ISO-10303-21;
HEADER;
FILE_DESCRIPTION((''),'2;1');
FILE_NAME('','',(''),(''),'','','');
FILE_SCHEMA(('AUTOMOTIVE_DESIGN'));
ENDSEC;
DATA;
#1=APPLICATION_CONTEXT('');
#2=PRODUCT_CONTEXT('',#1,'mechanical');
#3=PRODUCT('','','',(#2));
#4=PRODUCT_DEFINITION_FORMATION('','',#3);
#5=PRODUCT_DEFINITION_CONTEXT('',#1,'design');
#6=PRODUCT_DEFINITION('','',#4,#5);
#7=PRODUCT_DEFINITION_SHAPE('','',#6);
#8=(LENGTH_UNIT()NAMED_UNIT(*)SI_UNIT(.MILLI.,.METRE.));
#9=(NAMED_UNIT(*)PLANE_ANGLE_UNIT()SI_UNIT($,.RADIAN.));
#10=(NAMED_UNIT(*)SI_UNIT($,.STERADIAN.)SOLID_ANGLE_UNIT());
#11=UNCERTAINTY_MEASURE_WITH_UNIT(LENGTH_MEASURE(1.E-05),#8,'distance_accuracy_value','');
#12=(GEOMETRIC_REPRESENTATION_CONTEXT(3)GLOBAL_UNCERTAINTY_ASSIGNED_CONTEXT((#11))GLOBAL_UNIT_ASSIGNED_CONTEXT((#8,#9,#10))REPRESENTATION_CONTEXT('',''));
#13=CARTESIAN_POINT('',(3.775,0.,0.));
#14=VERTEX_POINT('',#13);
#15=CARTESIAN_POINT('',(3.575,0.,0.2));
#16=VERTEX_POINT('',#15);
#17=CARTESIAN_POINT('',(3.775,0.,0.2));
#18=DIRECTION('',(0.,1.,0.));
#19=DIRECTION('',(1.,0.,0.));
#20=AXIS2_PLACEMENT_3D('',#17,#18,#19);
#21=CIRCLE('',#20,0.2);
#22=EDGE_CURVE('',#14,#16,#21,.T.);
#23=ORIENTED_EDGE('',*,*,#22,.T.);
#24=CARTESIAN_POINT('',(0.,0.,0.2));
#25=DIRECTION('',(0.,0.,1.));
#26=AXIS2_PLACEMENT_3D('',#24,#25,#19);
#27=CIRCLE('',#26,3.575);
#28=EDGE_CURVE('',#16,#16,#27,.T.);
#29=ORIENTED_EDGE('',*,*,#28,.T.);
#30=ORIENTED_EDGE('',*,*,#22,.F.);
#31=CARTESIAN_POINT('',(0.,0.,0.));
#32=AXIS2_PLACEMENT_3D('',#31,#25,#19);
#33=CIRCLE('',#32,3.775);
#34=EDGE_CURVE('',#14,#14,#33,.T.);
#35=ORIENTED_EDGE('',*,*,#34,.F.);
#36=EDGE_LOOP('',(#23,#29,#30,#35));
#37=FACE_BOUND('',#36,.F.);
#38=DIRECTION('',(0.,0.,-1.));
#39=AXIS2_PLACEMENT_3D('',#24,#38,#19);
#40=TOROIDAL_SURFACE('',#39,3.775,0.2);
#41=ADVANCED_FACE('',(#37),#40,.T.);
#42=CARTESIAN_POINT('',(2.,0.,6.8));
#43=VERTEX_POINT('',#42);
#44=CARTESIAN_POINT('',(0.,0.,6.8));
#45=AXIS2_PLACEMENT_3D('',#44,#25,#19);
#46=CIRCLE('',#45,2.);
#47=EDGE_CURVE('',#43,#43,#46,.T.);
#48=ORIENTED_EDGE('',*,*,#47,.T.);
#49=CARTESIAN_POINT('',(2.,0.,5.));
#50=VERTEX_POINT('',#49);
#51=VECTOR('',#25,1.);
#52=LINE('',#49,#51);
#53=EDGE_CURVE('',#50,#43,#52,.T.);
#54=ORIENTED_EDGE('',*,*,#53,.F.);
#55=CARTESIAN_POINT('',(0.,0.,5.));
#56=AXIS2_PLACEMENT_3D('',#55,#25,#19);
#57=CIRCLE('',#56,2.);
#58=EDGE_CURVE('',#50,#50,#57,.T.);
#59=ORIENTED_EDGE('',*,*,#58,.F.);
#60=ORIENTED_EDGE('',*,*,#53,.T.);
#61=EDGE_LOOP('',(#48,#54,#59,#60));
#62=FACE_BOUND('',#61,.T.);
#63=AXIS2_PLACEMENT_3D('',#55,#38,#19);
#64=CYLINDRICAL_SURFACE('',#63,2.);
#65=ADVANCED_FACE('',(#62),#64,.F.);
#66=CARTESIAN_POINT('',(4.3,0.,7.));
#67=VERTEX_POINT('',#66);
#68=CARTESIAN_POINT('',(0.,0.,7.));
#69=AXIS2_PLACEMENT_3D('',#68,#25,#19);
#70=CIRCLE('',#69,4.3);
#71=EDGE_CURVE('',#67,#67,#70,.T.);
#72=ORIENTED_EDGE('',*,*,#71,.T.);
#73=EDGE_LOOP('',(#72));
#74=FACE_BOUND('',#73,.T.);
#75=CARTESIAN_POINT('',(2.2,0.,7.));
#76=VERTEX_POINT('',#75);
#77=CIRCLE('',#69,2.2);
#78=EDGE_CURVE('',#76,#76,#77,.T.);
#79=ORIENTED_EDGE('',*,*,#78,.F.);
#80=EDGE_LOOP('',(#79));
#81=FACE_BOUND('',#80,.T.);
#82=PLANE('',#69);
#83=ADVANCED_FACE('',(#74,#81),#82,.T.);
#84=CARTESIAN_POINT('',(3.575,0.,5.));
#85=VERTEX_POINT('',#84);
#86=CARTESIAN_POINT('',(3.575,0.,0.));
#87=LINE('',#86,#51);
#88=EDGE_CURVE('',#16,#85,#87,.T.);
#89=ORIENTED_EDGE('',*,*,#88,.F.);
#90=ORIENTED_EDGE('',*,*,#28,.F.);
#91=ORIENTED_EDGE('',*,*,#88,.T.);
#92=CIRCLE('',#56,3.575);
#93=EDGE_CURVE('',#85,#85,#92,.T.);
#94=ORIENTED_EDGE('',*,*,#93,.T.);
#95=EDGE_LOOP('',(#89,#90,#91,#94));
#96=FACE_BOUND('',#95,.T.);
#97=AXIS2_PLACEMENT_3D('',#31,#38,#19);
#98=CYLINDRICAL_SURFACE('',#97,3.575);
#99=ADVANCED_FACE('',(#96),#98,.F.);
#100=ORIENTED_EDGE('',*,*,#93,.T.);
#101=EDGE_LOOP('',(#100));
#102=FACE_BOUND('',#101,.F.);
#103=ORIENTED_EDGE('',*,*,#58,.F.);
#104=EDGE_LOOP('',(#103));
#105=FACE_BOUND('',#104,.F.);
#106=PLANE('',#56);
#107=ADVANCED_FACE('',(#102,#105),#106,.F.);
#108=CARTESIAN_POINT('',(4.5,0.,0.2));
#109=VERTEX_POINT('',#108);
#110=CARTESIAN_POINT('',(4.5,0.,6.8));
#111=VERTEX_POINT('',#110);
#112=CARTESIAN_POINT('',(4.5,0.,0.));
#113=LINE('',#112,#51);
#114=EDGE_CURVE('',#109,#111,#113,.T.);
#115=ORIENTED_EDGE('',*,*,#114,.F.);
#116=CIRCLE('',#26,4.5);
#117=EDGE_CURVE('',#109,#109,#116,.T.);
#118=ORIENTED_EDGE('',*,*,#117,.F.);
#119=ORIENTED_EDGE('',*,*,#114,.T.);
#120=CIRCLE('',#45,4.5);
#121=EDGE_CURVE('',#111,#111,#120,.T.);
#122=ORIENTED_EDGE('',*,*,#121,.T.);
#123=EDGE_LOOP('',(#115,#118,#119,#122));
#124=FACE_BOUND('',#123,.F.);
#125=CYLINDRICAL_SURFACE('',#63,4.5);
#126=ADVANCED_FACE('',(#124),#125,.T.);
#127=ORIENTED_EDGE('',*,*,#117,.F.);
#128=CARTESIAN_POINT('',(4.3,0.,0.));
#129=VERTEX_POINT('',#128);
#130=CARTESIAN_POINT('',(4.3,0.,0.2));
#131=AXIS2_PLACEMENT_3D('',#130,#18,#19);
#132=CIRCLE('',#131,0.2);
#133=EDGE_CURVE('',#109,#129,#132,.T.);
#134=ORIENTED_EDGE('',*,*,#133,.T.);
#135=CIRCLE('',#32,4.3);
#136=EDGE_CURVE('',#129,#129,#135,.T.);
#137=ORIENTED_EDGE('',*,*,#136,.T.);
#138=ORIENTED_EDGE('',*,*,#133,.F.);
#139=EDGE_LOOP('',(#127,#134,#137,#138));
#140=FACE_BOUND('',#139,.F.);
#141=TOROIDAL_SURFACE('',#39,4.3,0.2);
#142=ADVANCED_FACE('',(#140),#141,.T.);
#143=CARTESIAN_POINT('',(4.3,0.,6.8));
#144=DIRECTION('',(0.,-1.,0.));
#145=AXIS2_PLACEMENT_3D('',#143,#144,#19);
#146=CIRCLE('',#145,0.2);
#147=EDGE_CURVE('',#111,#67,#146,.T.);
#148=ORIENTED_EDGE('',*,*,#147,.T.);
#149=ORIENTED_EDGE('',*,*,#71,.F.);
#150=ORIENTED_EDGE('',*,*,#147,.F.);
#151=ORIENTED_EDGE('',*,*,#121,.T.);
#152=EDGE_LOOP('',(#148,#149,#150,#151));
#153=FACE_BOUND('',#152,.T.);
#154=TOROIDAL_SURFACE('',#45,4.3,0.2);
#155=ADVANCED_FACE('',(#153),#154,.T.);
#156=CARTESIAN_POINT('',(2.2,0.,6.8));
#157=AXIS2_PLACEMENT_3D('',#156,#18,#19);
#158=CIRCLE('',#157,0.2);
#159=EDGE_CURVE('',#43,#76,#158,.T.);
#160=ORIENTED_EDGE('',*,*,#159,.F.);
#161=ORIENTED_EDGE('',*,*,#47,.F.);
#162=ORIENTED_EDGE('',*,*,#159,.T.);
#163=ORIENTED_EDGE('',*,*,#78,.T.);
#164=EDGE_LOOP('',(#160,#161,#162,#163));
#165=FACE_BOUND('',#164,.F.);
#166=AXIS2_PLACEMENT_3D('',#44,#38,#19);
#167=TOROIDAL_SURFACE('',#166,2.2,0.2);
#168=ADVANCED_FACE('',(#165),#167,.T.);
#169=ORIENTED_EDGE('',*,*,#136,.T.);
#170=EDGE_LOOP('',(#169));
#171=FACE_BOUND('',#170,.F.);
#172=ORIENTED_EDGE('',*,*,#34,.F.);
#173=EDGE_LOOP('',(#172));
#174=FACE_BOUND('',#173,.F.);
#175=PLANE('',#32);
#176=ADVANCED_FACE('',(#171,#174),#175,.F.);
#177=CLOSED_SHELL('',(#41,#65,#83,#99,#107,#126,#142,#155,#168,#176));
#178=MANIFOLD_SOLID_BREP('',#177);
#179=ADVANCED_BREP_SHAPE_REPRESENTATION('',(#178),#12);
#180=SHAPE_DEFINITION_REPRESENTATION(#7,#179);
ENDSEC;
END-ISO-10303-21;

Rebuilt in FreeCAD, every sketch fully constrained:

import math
import FreeCAD as App
import Part
import Sketcher


def edges_at(feature, points):
    """Names of the edges that pass closest to the given points."""
    edges = feature.Shape.Edges
    near = lambda p: min(range(len(edges)), key=lambda i: edges[i].distToShape(Part.Vertex(*p))[0])
    return sorted({f"Edge{near(p) + 1}" for p in points})

doc = App.newDocument("Part")
params = doc.addObject("Spreadsheet::Sheet", "Params")
for row, (alias, value) in enumerate([
    ("sketch1_diameter", "9 mm"),
    ("sketch1_diameter2", "7.15 mm"),
    ("pad1_length", "5 mm"),
    ("sketch2_radius", "5 mm"),
    ("groove_angle", "360 deg"),
    ("sketch3_diameter", "9 mm"),
    ("sketch3_diameter2", "4 mm"),
    ("pad2_length", "2 mm"),
    ("fillet_radius", "0.2 mm"),
], start=1):
    params.set(f"A{row}", alias)
    params.set(f"B{row}", "=" + value)
    params.setAlias(f"B{row}", alias)

body = doc.addObject("PartDesign::Body", "Body")

# Sketch on XY plane
sketch1 = doc.addObject("Sketcher::SketchObject", "Sketch")
body.addObject(sketch1)
sketch1.AttachmentSupport = (doc.XY_Plane, [""])
sketch1.MapMode = "FlatFace"
sketch1.addGeometry(Part.Circle(App.Vector(0, 0, 0), App.Vector(0, 0, 1), 4.5), False)
sketch1.addGeometry(Part.Circle(App.Vector(0, 0, 0), App.Vector(0, 0, 1), 3.575), False)
sketch1.addConstraint(Sketcher.Constraint("Coincident", 0, 3, -1, 1))
sketch1.addConstraint(Sketcher.Constraint("Coincident", 1, 3, -1, 1))
sketch1.addConstraint(Sketcher.Constraint("Diameter", 0, 9.0))
sketch1.addConstraint(Sketcher.Constraint("Diameter", 1, 7.15))
sketch1.setExpression("Constraints[2]", "Params.sketch1_diameter")
sketch1.setExpression("Constraints[3]", "Params.sketch1_diameter2")
pad1 = doc.addObject("PartDesign::Pad", "Pad")
body.addObject(pad1)
pad1.Profile = sketch1
pad1.setExpression("Length", "Params.pad1_length")

# Sketch on XZ plane
sketch2 = doc.addObject("Sketcher::SketchObject", "Sketch001")
body.addObject(sketch2)
sketch2.AttachmentSupport = (doc.XZ_Plane, [""])
sketch2.MapMode = "FlatFace"
sketch2.addGeometry(Part.LineSegment(App.Vector(0, 12, 0), App.Vector(0, 22, 0)), False)
sketch2.addGeometry(Part.ArcOfCircle(Part.Circle(App.Vector(0, 17, 0), App.Vector(0, 0, 1), 5), math.radians(90), math.radians(270)), False)
sketch2.addConstraint(Sketcher.Constraint("Coincident", 0, 1, 1, 2))
sketch2.addConstraint(Sketcher.Constraint("Coincident", 1, 1, 0, 2))
sketch2.addConstraint(Sketcher.Constraint("Vertical", 0))
sketch2.addConstraint(Sketcher.Constraint("PointOnObject", 1, 3, -2))
sketch2.addConstraint(Sketcher.Constraint("PointOnObject", 0, 1, -2))
sketch2.addConstraint(Sketcher.Constraint("Radius", 1, 5.0))
sketch2.addConstraint(Sketcher.Constraint("DistanceY", -1, 1, 1, 3, 17.0))
sketch2.setExpression("Constraints[5]", "Params.sketch2_radius")
groove = doc.addObject("PartDesign::Groove", "Groove")
body.addObject(groove)
groove.Profile = sketch2
groove.ReferenceAxis = (sketch2, ["V_Axis"])
groove.setExpression("Angle", "Params.groove_angle")

# Sketch on XY plane
sketch3 = doc.addObject("Sketcher::SketchObject", "Sketch002")
body.addObject(sketch3)
sketch3.AttachmentSupport = (doc.XY_Plane, [""])
sketch3.MapMode = "FlatFace"
sketch3.AttachmentOffset = App.Placement(App.Vector(0, 0, 5), App.Rotation())
sketch3.addGeometry(Part.Circle(App.Vector(0, 0, 0), App.Vector(0, 0, 1), 4.5), False)
sketch3.addGeometry(Part.Circle(App.Vector(0, 0, 0), App.Vector(0, 0, 1), 2), False)
sketch3.addConstraint(Sketcher.Constraint("Coincident", 0, 3, -1, 1))
sketch3.addConstraint(Sketcher.Constraint("Coincident", 1, 3, -1, 1))
sketch3.addConstraint(Sketcher.Constraint("Diameter", 0, 9.0))
sketch3.addConstraint(Sketcher.Constraint("Diameter", 1, 4.0))
sketch3.setExpression("Constraints[2]", "Params.sketch3_diameter")
sketch3.setExpression("Constraints[3]", "Params.sketch3_diameter2")
pad2 = doc.addObject("PartDesign::Pad", "Pad001")
body.addObject(pad2)
pad2.Profile = sketch3
pad2.setExpression("Length", "Params.pad2_length")
doc.recompute()

fillet = doc.addObject("PartDesign::Fillet", "Fillet")
body.addObject(fillet)
fillet.Base = (pad2, edges_at(pad2, [
    (-4.5, 0, 0),
    (4.5, 0, 3.5),
    (-4.5, 0, 7),
    (-2, 0, 7),
    (-3.575, 0, 0),
]))
fillet.setExpression("Radius", "Params.fillet_radius")

doc.recompute()
